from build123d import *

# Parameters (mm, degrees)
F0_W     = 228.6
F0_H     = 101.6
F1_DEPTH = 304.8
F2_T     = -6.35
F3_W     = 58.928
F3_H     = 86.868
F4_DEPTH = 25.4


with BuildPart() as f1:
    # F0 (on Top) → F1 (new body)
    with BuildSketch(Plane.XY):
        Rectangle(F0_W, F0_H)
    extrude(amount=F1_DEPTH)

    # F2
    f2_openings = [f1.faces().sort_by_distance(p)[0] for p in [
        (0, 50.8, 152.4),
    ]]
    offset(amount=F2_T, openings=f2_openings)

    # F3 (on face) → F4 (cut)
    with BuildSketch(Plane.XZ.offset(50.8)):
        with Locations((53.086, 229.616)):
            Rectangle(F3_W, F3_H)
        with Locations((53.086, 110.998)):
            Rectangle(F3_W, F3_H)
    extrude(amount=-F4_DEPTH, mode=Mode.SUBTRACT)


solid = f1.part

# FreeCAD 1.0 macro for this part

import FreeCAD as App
import Part
import Sketcher
from FreeCAD import Vector
Q = App.Units.Quantity


def faces_at(feature, points):
    """Names of the faces that lie closest to the given points."""
    faces = feature.Shape.Faces
    near = lambda p: min(range(len(faces)), key=lambda i: faces[i].distToShape(Part.Vertex(*p))[0])
    return sorted({f"Face{near(p) + 1}" for p in points})

doc = App.newDocument("Part")
params = doc.addObject("Spreadsheet::Sheet", "Params")
for row, (alias, value) in enumerate([
    ("sketch1_width", "9 in"),
    ("sketch1_height", "4 in"),
    ("pad1_length", "12 in"),
    ("thickness_wall", "0.25 in"),
    ("sketch2_width", "2.32 in"),
    ("sketch2_height", "3.42 in"),
    ("pocket1_length", "1 in"),
], start=1):
    params.set(f"A{row}", alias)
    params.set(f"B{row}", "=" + value)
    params.setAlias(f"B{row}", alias)

body = doc.addObject("PartDesign::Body", "Body")

sketch1 = body.newObject("Sketcher::SketchObject", "Sketch")
sketch1.AttachmentSupport = (doc.getObject("XY_Plane"), [""])
sketch1.MapMode = "FlatFace"
sketch1.addGeometry([
    Part.LineSegment(Vector(-114.3, 50.8, 0), Vector(-114.3, -50.8, 0)),
    Part.LineSegment(Vector(-114.3, -50.8, 0), Vector(114.3, -50.8, 0)),
    Part.LineSegment(Vector(114.3, -50.8, 0), Vector(114.3, 50.8, 0)),
    Part.LineSegment(Vector(114.3, 50.8, 0), Vector(-114.3, 50.8, 0)),
], False)
sketch1.addConstraint([
    Sketcher.Constraint("Coincident", 0, 2, 1, 1),
    Sketcher.Constraint("Coincident", 1, 2, 2, 1),
    Sketcher.Constraint("Coincident", 2, 2, 3, 1),
    Sketcher.Constraint("Coincident", 3, 2, 0, 1),
    Sketcher.Constraint("Vertical", 0),
    Sketcher.Constraint("Horizontal", 1),
    Sketcher.Constraint("Vertical", 2),
    Sketcher.Constraint("Horizontal", 3),
    Sketcher.Constraint("Symmetric", 0, 2, 2, 2, -1, 1),
    Sketcher.Constraint("DistanceX", 1, 1, 1, 2, Q("9 in")),
    Sketcher.Constraint("DistanceY", 0, 2, 0, 1, Q("4 in")),
])
sketch1.setExpression("Constraints[9]", "Params.sketch1_width")
sketch1.setExpression("Constraints[10]", "Params.sketch1_height")
pad1 = body.newObject("PartDesign::Pad", "Pad")
pad1.Profile = sketch1
pad1.setExpression("Length", "Params.pad1_length")
doc.recompute()

thickness = body.newObject("PartDesign::Thickness", "Thickness")
thickness.Base = (pad1, faces_at(pad1, [(0, 50.8, 152.4)]))
thickness.setExpression("Value", "Params.thickness_wall")
thickness.Reversed = True
thickness.Join = "Arc"

sketch2 = body.newObject("Sketcher::SketchObject", "Sketch001")
sketch2.AttachmentSupport = (doc.getObject("XZ_Plane"), [""])
sketch2.MapMode = "FlatFace"
sketch2.AttachmentOffset = App.Placement(Vector(0, 0, 2 * 25.4), App.Rotation())
sketch2.addGeometry([
    Part.LineSegment(Vector(23.622, 273.05, 0), Vector(23.622, 186.182, 0)),
    Part.LineSegment(Vector(23.622, 186.182, 0), Vector(82.55, 186.182, 0)),
    Part.LineSegment(Vector(82.55, 186.182, 0), Vector(82.55, 273.05, 0)),
    Part.LineSegment(Vector(82.55, 273.05, 0), Vector(23.622, 273.05, 0)),
    Part.LineSegment(Vector(23.622, 154.432, 0), Vector(23.622, 67.564, 0)),
    Part.LineSegment(Vector(23.622, 67.564, 0), Vector(82.55, 67.564, 0)),
    Part.LineSegment(Vector(82.55, 67.564, 0), Vector(82.55, 154.432, 0)),
    Part.LineSegment(Vector(82.55, 154.432, 0), Vector(23.622, 154.432, 0)),
], False)
sketch2.addConstraint([
    Sketcher.Constraint("Coincident", 0, 2, 1, 1),
    Sketcher.Constraint("Coincident", 1, 2, 2, 1),
    Sketcher.Constraint("Coincident", 2, 2, 3, 1),
    Sketcher.Constraint("Coincident", 3, 2, 0, 1),
    Sketcher.Constraint("Coincident", 4, 2, 5, 1),
    Sketcher.Constraint("Coincident", 5, 2, 6, 1),
    Sketcher.Constraint("Coincident", 6, 2, 7, 1),
    Sketcher.Constraint("Coincident", 7, 2, 4, 1),
    Sketcher.Constraint("Vertical", 0),
    Sketcher.Constraint("Horizontal", 1),
    Sketcher.Constraint("Vertical", 2),
    Sketcher.Constraint("Horizontal", 3),
    Sketcher.Constraint("Vertical", 4),
    Sketcher.Constraint("Horizontal", 5),
    Sketcher.Constraint("Vertical", 6),
    Sketcher.Constraint("Horizontal", 7),
    Sketcher.Constraint("Vertical", 3, 2, 4, 2),
    Sketcher.Constraint("Vertical", 2, 2, 5, 2),
    Sketcher.Constraint("Equal", 2, 4),
    Sketcher.Constraint("DistanceX", 1, 1, 1, 2, Q("2.32 in")),
    Sketcher.Constraint("DistanceY", 0, 2, 0, 1, Q("3.42 in")),
    Sketcher.Constraint("DistanceX", -1, 1, 0, 2, Q("0.93 in")),
    Sketcher.Constraint("DistanceY", -1, 1, 0, 2, Q("7.33 in")),
    Sketcher.Constraint("DistanceY", -1, 1, 4, 2, Q("2.66 in")),
])
sketch2.setExpression("Constraints[19]", "Params.sketch2_width")
sketch2.setExpression("Constraints[20]", "Params.sketch2_height")
pocket1 = body.newObject("PartDesign::Pocket", "Pocket")
pocket1.Profile = sketch2
pocket1.setExpression("Length", "Params.pocket1_length")

doc.recompute()
